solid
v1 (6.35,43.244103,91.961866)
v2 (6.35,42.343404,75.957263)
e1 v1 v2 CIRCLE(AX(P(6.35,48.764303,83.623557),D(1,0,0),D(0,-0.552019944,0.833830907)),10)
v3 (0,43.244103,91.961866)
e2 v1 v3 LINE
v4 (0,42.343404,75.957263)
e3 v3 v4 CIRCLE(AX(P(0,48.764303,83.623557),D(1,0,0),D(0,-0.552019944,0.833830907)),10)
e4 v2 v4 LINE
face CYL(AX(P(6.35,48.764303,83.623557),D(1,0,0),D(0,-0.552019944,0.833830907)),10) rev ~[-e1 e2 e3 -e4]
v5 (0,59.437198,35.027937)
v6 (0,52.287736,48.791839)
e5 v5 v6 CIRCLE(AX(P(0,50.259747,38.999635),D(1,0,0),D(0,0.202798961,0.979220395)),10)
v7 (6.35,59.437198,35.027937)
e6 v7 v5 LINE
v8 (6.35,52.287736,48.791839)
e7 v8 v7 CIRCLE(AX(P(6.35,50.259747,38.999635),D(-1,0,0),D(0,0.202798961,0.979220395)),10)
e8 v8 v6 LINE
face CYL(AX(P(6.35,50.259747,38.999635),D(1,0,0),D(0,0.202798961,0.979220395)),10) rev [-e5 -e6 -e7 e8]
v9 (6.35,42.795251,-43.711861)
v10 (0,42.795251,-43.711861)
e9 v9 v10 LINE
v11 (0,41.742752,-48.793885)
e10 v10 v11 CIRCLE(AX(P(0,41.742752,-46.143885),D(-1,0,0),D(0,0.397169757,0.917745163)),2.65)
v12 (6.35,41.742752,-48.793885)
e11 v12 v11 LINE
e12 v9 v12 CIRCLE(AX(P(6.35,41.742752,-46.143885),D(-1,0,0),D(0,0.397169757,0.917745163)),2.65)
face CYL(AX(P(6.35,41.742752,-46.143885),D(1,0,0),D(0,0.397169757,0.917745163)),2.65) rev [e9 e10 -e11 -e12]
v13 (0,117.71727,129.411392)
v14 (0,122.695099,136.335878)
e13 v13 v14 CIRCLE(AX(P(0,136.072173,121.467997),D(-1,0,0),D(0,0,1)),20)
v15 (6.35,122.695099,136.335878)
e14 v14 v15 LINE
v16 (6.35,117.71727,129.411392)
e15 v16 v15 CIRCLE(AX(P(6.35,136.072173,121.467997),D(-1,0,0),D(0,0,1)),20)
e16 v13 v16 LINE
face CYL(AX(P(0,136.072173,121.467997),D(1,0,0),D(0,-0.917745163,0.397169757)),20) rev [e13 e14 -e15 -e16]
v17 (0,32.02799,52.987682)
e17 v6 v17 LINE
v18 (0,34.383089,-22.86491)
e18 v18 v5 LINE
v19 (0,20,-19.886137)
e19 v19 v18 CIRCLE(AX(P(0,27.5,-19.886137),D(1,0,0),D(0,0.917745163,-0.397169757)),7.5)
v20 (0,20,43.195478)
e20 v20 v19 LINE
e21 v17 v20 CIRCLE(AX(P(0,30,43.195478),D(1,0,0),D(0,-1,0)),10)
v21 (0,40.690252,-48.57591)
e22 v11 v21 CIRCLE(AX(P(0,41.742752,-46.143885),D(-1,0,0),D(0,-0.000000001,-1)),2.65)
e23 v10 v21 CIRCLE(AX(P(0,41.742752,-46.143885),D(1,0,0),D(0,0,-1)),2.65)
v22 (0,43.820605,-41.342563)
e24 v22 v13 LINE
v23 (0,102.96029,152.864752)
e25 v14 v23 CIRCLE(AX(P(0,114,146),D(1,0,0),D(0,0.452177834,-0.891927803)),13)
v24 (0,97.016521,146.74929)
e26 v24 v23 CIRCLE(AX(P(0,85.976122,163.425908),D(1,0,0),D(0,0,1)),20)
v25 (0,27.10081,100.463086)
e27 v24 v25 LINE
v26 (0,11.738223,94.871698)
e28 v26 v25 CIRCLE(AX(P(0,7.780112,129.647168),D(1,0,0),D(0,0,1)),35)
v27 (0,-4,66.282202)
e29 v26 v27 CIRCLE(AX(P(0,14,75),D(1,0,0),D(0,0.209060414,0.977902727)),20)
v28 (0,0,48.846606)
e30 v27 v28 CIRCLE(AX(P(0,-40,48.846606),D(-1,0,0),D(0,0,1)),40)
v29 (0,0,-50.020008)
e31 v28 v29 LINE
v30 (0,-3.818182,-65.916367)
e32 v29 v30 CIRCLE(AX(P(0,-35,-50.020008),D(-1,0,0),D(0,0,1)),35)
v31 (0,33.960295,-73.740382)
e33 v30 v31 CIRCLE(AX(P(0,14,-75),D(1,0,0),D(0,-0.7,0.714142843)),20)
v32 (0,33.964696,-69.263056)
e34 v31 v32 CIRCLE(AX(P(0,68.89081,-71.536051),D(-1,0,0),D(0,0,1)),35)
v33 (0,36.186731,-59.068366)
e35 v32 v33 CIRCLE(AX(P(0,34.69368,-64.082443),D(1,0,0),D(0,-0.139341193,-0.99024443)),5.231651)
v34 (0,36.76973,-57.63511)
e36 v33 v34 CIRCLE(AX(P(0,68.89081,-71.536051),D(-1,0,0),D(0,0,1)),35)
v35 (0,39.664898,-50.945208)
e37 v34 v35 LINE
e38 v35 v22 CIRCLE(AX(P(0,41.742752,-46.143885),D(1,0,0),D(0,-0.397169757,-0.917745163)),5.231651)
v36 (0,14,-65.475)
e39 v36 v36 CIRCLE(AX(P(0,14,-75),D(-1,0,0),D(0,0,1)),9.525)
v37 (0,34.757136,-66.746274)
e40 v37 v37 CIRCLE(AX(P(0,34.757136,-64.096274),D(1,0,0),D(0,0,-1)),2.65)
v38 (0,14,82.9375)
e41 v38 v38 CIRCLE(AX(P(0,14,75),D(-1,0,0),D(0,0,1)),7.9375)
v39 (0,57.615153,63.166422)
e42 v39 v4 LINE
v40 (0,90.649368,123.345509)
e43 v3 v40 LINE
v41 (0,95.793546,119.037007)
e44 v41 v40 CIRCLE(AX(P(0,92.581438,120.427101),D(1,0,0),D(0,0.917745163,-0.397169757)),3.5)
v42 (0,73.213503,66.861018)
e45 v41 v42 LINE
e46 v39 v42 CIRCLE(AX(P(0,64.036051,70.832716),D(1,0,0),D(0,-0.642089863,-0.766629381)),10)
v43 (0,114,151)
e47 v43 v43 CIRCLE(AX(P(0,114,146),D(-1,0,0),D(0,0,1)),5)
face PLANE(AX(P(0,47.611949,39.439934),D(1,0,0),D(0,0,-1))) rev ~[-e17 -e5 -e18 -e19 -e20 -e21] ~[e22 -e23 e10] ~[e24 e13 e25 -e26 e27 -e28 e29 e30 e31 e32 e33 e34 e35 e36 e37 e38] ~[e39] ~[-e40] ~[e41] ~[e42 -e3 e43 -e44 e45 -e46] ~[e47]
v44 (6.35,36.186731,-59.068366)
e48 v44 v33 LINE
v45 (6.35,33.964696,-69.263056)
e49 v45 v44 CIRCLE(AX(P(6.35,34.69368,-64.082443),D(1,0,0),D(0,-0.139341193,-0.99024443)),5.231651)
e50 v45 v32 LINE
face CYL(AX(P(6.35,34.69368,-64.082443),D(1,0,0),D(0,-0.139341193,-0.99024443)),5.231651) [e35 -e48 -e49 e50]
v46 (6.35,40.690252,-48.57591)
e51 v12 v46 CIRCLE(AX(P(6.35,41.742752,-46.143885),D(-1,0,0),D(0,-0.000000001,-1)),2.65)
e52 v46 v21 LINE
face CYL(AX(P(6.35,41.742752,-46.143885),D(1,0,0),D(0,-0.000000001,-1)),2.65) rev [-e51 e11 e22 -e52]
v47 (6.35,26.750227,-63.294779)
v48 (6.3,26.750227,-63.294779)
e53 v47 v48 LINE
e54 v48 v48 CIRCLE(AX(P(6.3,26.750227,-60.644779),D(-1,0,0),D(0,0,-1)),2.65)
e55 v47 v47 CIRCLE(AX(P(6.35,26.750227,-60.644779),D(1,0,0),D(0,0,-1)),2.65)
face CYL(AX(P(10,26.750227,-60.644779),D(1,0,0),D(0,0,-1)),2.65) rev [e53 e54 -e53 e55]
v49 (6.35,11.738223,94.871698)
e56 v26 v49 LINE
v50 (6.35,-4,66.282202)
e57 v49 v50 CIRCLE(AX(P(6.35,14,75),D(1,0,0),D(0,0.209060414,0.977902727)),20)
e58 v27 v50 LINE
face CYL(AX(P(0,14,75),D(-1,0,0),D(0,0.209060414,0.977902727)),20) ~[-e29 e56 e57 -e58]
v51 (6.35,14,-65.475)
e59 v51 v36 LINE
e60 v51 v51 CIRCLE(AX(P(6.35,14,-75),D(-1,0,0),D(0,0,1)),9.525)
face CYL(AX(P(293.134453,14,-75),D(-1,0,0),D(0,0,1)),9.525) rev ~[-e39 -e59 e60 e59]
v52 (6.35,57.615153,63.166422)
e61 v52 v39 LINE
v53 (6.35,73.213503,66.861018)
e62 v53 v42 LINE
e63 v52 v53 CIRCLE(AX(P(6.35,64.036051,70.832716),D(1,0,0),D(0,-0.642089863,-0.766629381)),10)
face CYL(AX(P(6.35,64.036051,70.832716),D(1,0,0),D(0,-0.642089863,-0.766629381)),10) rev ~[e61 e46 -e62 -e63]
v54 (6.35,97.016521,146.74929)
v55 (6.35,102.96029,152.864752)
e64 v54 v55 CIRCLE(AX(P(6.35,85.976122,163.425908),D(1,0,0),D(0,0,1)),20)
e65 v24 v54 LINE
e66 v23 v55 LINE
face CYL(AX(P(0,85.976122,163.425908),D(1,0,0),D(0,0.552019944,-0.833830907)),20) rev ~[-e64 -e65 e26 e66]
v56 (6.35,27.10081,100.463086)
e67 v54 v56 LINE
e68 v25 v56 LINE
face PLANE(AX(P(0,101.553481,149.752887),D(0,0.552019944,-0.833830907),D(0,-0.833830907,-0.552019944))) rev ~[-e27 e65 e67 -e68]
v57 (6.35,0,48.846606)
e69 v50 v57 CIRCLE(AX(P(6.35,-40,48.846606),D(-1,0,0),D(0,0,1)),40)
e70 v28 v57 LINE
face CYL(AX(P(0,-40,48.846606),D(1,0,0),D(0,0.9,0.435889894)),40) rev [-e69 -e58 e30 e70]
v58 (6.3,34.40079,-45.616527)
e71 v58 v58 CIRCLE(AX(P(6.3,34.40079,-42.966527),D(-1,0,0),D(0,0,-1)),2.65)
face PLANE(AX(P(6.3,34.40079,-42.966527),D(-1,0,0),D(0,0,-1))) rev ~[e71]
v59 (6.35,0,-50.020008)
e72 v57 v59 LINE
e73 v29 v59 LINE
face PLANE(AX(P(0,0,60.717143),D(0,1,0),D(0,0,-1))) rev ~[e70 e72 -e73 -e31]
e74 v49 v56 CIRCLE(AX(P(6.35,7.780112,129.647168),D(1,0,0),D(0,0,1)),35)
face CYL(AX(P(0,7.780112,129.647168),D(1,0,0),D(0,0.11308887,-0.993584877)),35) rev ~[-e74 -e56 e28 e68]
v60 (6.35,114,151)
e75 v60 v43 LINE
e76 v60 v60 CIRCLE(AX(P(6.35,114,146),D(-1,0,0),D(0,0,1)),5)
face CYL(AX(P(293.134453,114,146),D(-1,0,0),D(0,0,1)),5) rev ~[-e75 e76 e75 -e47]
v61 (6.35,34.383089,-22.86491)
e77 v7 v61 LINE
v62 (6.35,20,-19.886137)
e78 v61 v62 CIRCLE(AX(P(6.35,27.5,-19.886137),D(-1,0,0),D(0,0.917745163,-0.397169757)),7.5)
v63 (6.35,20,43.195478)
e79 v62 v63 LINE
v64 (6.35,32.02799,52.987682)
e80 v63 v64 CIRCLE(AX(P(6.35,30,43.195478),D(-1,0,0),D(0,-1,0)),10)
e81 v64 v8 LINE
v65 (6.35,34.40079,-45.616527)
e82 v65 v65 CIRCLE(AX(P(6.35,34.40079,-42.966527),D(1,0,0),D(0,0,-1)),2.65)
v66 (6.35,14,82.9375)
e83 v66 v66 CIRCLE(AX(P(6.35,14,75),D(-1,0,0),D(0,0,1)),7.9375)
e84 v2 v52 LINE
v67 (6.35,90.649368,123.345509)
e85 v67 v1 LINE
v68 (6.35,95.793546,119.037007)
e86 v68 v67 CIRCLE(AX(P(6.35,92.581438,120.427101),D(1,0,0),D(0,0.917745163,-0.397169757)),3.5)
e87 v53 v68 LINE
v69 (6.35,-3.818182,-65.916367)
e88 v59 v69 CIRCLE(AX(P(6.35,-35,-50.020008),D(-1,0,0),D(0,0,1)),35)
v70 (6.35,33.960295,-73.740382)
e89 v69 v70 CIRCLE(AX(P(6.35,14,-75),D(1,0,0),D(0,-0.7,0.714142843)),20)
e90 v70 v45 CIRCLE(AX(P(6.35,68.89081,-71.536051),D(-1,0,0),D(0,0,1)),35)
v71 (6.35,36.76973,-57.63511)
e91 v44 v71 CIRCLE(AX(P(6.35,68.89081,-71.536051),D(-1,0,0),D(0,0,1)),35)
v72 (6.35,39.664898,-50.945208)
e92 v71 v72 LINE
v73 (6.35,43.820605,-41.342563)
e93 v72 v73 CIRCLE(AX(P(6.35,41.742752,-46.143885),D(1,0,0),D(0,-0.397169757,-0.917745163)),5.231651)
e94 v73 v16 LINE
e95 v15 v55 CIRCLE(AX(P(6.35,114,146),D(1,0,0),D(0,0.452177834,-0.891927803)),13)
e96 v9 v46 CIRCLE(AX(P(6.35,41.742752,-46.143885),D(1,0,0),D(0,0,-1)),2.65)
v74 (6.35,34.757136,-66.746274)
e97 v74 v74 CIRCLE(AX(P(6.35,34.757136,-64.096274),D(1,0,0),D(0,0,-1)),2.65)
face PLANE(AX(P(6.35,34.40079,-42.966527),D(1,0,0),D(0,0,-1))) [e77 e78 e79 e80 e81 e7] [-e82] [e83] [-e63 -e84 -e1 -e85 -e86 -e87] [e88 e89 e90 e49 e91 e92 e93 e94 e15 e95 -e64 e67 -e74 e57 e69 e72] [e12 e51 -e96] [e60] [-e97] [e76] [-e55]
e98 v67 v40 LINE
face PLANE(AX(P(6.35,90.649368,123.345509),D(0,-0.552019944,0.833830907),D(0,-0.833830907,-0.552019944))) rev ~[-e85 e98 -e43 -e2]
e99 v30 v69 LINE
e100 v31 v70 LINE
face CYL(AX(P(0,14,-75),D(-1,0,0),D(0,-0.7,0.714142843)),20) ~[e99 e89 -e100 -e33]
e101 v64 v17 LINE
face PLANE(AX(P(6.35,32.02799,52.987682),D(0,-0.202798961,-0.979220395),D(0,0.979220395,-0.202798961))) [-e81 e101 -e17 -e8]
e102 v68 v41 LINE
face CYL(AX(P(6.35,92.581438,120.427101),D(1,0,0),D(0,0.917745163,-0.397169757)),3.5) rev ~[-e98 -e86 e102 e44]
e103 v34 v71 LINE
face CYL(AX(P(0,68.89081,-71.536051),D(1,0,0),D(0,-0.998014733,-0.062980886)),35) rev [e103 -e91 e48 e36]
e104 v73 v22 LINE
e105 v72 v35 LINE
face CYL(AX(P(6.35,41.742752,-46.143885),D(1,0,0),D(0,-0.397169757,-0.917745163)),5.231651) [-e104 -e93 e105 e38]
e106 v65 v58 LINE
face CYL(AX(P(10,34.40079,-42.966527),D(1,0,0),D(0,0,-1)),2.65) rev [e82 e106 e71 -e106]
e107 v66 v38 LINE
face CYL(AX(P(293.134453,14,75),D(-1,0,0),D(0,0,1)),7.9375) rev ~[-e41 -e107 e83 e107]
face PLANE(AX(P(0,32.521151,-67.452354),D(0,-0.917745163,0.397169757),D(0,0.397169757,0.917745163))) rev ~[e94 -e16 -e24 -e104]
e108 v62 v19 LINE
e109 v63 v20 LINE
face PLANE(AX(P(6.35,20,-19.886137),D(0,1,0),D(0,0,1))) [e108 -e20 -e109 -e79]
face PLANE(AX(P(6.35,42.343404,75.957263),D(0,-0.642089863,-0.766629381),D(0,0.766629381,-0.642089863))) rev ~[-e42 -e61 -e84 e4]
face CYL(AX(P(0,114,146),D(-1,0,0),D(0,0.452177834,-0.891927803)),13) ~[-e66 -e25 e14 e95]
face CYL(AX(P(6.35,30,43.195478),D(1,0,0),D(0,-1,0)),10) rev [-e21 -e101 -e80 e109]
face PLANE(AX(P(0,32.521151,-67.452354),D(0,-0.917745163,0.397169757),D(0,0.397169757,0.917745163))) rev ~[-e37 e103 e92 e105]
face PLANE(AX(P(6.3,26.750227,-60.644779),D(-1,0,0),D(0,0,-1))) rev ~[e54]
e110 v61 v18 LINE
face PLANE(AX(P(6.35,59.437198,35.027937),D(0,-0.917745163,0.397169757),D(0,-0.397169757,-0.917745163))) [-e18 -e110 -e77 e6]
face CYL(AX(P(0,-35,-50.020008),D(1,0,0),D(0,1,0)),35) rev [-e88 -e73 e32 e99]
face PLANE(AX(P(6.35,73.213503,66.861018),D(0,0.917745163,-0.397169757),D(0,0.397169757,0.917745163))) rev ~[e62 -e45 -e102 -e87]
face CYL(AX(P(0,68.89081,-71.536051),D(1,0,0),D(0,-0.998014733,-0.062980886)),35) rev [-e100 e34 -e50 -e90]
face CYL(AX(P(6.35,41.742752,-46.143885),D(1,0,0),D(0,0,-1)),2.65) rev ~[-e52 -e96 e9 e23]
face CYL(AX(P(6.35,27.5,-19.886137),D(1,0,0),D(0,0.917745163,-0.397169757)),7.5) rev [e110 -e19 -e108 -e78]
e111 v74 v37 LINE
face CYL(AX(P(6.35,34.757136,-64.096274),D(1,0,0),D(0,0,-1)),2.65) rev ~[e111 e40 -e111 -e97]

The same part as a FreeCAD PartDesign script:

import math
import FreeCAD as App
import Part
import Sketcher
Q = App.Units.Quantity


def edges_at(feature, points):
    """Names of the edges that pass closest to the given points."""
    edges = feature.Shape.Edges
    near = lambda p: min(range(len(edges)), key=lambda i: edges[i].distToShape(Part.Vertex(*p))[0])
    return sorted({f"Edge{near(p) + 1}" for p in points})

doc = App.newDocument("Part")
body = doc.addObject("PartDesign::Body", "Body")

# Sketch on YZ plane
sketch1 = body.newObject("Sketcher::SketchObject", "Sketch")
sketch1.AttachmentSupport = (doc.getObject("YZ_Plane"), [""])
sketch1.MapMode = "FlatFace"
sketch1.addGeometry(Part.LineSegment(App.Vector(0, 60.717143, 0), App.Vector(0, -60.717143, 0)), False)
sketch1.addGeometry(Part.ArcOfCircle(Part.Circle(App.Vector(14, -75, 0), App.Vector(0, 0, 1), 20), math.radians(134.427004), math.radians(382.171631)), False)
sketch1.addGeometry(Part.LineSegment(App.Vector(32.521151, -67.452354, 0), App.Vector(119.878312, 134.404939, 0)), False)
sketch1.addGeometry(Part.ArcOfCircle(Part.Circle(App.Vector(114, 146, 0), App.Vector(0, 0, 1), 13), math.radians(-63.116502), math.radians(163.220837)), False)
sketch1.addGeometry(Part.LineSegment(App.Vector(101.553481, 149.752887, 0), App.Vector(18.181208, 94.558055, 0)), False)
sketch1.addGeometry(Part.ArcOfCircle(Part.Circle(App.Vector(14, 75, 0), App.Vector(0, 0, 1), 20), math.radians(77.932704), math.radians(225.572996)), False)
sketch1.addConstraint(Sketcher.Constraint("Coincident", 0, 2, 1, 1))
sketch1.addConstraint(Sketcher.Constraint("Coincident", 1, 2, 2, 1))
sketch1.addConstraint(Sketcher.Constraint("Coincident", 2, 2, 3, 1))
sketch1.addConstraint(Sketcher.Constraint("Coincident", 3, 2, 4, 1))
sketch1.addConstraint(Sketcher.Constraint("Coincident", 4, 2, 5, 1))
sketch1.addConstraint(Sketcher.Constraint("Coincident", 5, 2, 0, 1))
sketch1.addConstraint(Sketcher.Constraint("Vertical", 0))
sketch1.addConstraint(Sketcher.Constraint("Equal", 1, 5))
sketch1.addConstraint(Sketcher.Constraint("Symmetric", 0, 2, 5, 2, -1, 1))
sketch1.addConstraint(Sketcher.Constraint("Vertical", 1, 3, 5, 3))
sketch1.addConstraint(Sketcher.Constraint("Radius", 1, Q("20 mm")))
sketch1.addConstraint(Sketcher.Constraint("Radius", 3, Q("13 mm")))
sketch1.addConstraint(Sketcher.Constraint("DistanceX", -1, 1, 1, 3, Q("14 mm")))
sketch1.addConstraint(Sketcher.Constraint("DistanceY", 1, 3, -1, 1, Q("75 mm")))
sketch1.addConstraint(Sketcher.Constraint("DistanceX", -1, 1, 3, 3, Q("114 mm")))
sketch1.addConstraint(Sketcher.Constraint("DistanceY", -1, 1, 3, 3, Q("146 mm")))
sketch1.addConstraint(Sketcher.Constraint("DistanceX", -1, 1, 1, 2, Q("32.521151 mm")))
sketch1.addConstraint(Sketcher.Constraint("DistanceX", -1, 1, 2, 2, Q("119.878312 mm")))
sketch1.addConstraint(Sketcher.Constraint("DistanceX", -1, 1, 3, 2, Q("101.553481 mm")))
sketch1.addConstraint(Sketcher.Constraint("DistanceX", -1, 1, 4, 2, Q("18.181208 mm")))
pad1 = body.newObject("PartDesign::Pad", "Pad")
pad1.Profile = sketch1
pad1.Length = 6.35

# Sketch on YZ plane
sketch2 = body.newObject("Sketcher::SketchObject", "Sketch001")
sketch2.AttachmentSupport = (doc.getObject("YZ_Plane"), [""])
sketch2.MapMode = "FlatFace"
sketch2.AttachmentOffset = App.Placement(App.Vector(0, 0, 6.35), App.Rotation())
sketch2.addGeometry(Part.Circle(App.Vector(14, -75, 0), App.Vector(0, 0, 1), 9.525), False)
sketch2.addConstraint(Sketcher.Constraint("Diameter", 0, Q("19.05 mm")))
sketch2.addConstraint(Sketcher.Constraint("DistanceX", -1, 1, 0, 3, Q("14 mm")))
sketch2.addConstraint(Sketcher.Constraint("DistanceY", 0, 3, -1, 1, Q("75 mm")))
doc.recompute()
hole = body.newObject("PartDesign::Hole", "Hole")
hole.Profile = sketch2
hole.ThreadType = "None"
hole.Diameter = 19.05
hole.DepthType = "ThroughAll"

# Sketch on YZ plane
sketch3 = body.newObject("Sketcher::SketchObject", "Sketch002")
sketch3.AttachmentSupport = (doc.getObject("YZ_Plane"), [""])
sketch3.MapMode = "FlatFace"
sketch3.AttachmentOffset = App.Placement(App.Vector(0, 0, 6.35), App.Rotation())
sketch3.addGeometry(Part.Circle(App.Vector(114, 146, 0), App.Vector(0, 0, 1), 5), False)
sketch3.addConstraint(Sketcher.Constraint("Diameter", 0, Q("10 mm")))
sketch3.addConstraint(Sketcher.Constraint("DistanceX", -1, 1, 0, 3, Q("114 mm")))
sketch3.addConstraint(Sketcher.Constraint("DistanceY", -1, 1, 0, 3, Q("146 mm")))
doc.recompute()
hole2 = body.newObject("PartDesign::Hole", "Hole001")
hole2.Profile = sketch3
hole2.ThreadType = "None"
hole2.Diameter = 10
hole2.DepthType = "ThroughAll"

# Sketch on YZ plane
sketch4 = body.newObject("Sketcher::SketchObject", "Sketch003")
sketch4.AttachmentSupport = (doc.getObject("YZ_Plane"), [""])
sketch4.MapMode = "FlatFace"
sketch4.AttachmentOffset = App.Placement(App.Vector(0, 0, 6.35), App.Rotation())
sketch4.addGeometry(Part.Circle(App.Vector(14, 75, 0), App.Vector(0, 0, 1), 7.9375), False)
sketch4.addConstraint(Sketcher.Constraint("Diameter", 0, Q("15.875 mm")))
sketch4.addConstraint(Sketcher.Constraint("DistanceX", -1, 1, 0, 3, Q("14 mm")))
sketch4.addConstraint(Sketcher.Constraint("DistanceY", -1, 1, 0, 3, Q("75 mm")))
doc.recompute()
hole3 = body.newObject("PartDesign::Hole", "Hole002")
hole3.Profile = sketch4
hole3.ThreadType = "None"
hole3.Diameter = 15.875
hole3.DepthType = "ThroughAll"

# Sketch on YZ plane
sketch5 = body.newObject("Sketcher::SketchObject", "Sketch004")
sketch5.AttachmentSupport = (doc.getObject("YZ_Plane"), [""])
sketch5.MapMode = "FlatFace"
sketch5.AttachmentOffset = App.Placement(App.Vector(0, 0, 6.35), App.Rotation())
sketch5.addGeometry(Part.LineSegment(App.Vector(52.287736, 48.791839, 0), App.Vector(32.02799, 52.987682, 0)), False)
sketch5.addGeometry(Part.ArcOfCircle(Part.Circle(App.Vector(30, 43.195478, 0), App.Vector(0, 0, 1), 10), math.radians(78.299317), math.radians(180)), False)
sketch5.addGeometry(Part.LineSegment(App.Vector(20, 43.195478, 0), App.Vector(20, -19.886137, 0)), False)
sketch5.addGeometry(Part.ArcOfCircle(Part.Circle(App.Vector(27.5, -19.886137, 0), App.Vector(0, 0, 1), 7.5), math.radians(-180), math.radians(-23.401365)), False)
sketch5.addGeometry(Part.LineSegment(App.Vector(34.383089, -22.86491, 0), App.Vector(59.437198, 35.027937, 0)), False)
sketch5.addGeometry(Part.ArcOfCircle(Part.Circle(App.Vector(50.259747, 38.999635, 0), App.Vector(0, 0, 1), 10), math.radians(-23.401365), math.radians(78.299317)), False)
sketch5.addConstraint(Sketcher.Constraint("Tangent", 0, 2, 1, 1))
sketch5.addConstraint(Sketcher.Constraint("Tangent", 1, 2, 2, 1))
sketch5.addConstraint(Sketcher.Constraint("Tangent", 2, 2, 3, 1))
sketch5.addConstraint(Sketcher.Constraint("Tangent", 3, 2, 4, 1))
sketch5.addConstraint(Sketcher.Constraint("Tangent", 4, 2, 5, 1))
sketch5.addConstraint(Sketcher.Constraint("Tangent", 5, 2, 0, 1))
sketch5.addConstraint(Sketcher.Constraint("Vertical", 2))
sketch5.addConstraint(Sketcher.Constraint("Equal", 1, 5))
sketch5.addConstraint(Sketcher.Constraint("Radius", 1, Q("10 mm")))
sketch5.addConstraint(Sketcher.Constraint("Radius", 3, Q("7.5 mm")))
sketch5.addConstraint(Sketcher.Constraint("DistanceX", -1, 1, 1, 3, Q("30 mm")))
sketch5.addConstraint(Sketcher.Constraint("DistanceX", -1, 1, 4, 2, Q("59.437198 mm")))
sketch5.addConstraint(Sketcher.Constraint("DistanceY", 4, 2, 5, 2, Q("13.763902 mm")))
sketch5.addConstraint(Sketcher.Constraint("Distance", 0, Q("20.68967 mm")))
sketch5.addConstraint(Sketcher.Constraint("DistanceY", -1, 1, 1, 3, Q("43.195478 mm")))
pocket1 = body.newObject("PartDesign::Pocket", "Pocket")
pocket1.Profile = sketch5
pocket1.Type = "UpToFirst"

# Sketch on YZ plane
sketch6 = body.newObject("Sketcher::SketchObject", "Sketch005")
sketch6.AttachmentSupport = (doc.getObject("YZ_Plane"), [""])
sketch6.MapMode = "FlatFace"
sketch6.AttachmentOffset = App.Placement(App.Vector(0, 0, 6.35), App.Rotation())
sketch6.addGeometry(Part.LineSegment(App.Vector(42.343404, 75.957263, 0), App.Vector(57.615153, 63.166422, 0)), False)
sketch6.addGeometry(Part.ArcOfCircle(Part.Circle(App.Vector(64.036051, 70.832716, 0), App.Vector(0, 0, 1), 10), math.radians(-129.947832), math.radians(-23.401365)), False)
sketch6.addGeometry(Part.LineSegment(App.Vector(73.213503, 66.861018, 0), App.Vector(95.793546, 119.037007, 0)), False)
sketch6.addGeometry(Part.ArcOfCircle(Part.Circle(App.Vector(92.581438, 120.427101, 0), App.Vector(0, 0, 1), 3.5), math.radians(-23.401365), math.radians(123.5057)), False)
sketch6.addGeometry(Part.LineSegment(App.Vector(90.649368, 123.345509, 0), App.Vector(43.244103, 91.961866, 0)), False)
sketch6.addGeometry(Part.ArcOfCircle(Part.Circle(App.Vector(48.764303, 83.623557, 0), App.Vector(0, 0, 1), 10), math.radians(123.5057), math.radians(230.052168)), False)
sketch6.addConstraint(Sketcher.Constraint("Tangent", 0, 2, 1, 1))
sketch6.addConstraint(Sketcher.Constraint("Tangent", 1, 2, 2, 1))
sketch6.addConstraint(Sketcher.Constraint("Tangent", 2, 2, 3, 1))
sketch6.addConstraint(Sketcher.Constraint("Tangent", 3, 2, 4, 1))
sketch6.addConstraint(Sketcher.Constraint("Tangent", 4, 2, 5, 1))
sketch6.addConstraint(Sketcher.Constraint("Tangent", 5, 2, 0, 1))
sketch6.addConstraint(Sketcher.Constraint("Equal", 1, 5))
sketch6.addConstraint(Sketcher.Constraint("Equal", 2, 4))
sketch6.addConstraint(Sketcher.Constraint("Radius", 1, Q("10 mm")))
sketch6.addConstraint(Sketcher.Constraint("Radius", 3, Q("3.5 mm")))
sketch6.addConstraint(Sketcher.Constraint("DistanceY", -1, 1, 3, 3, Q("120.427101 mm")))
sketch6.addConstraint(Sketcher.Constraint("DistanceX", 0, 2, 1, 3, Q("6.420899 mm")))
sketch6.addConstraint(Sketcher.Constraint("DistanceX", 5, 3, 1, 2, Q("24.4492 mm")))
sketch6.addConstraint(Sketcher.Constraint("DistanceX", 4, 2, 5, 3, Q("5.520199 mm")))
sketch6.addConstraint(Sketcher.Constraint("DistanceX", -1, 1, 1, 3, Q("64.036051 mm")))
pocket2 = body.newObject("PartDesign::Pocket", "Pocket001")
pocket2.Profile = sketch6
pocket2.Type = "UpToFirst"
doc.recompute()

fillet = body.newObject("PartDesign::Fillet", "Fillet")
fillet.Base = (pocket2, edges_at(pocket2, [(3.175, 18.181, 94.558)]))
fillet.Radius = 35
doc.recompute()

fillet2 = body.newObject("PartDesign::Fillet", "Fillet001")
fillet2.Base = (fillet, edges_at(fillet, [(3.175, 32.521, -67.452), (3.175, 0, -60.717)]))
fillet2.Radius = 35
doc.recompute()

fillet3 = body.newObject("PartDesign::Fillet", "Fillet002")
fillet3.Base = (fillet2, edges_at(fillet2, [(3.175, 101.553, 149.753), (3.175, 119.878, 134.405)]))
fillet3.Radius = 20
doc.recompute()

fillet4 = body.newObject("PartDesign::Fillet", "Fillet003")
fillet4.Base = (fillet3, edges_at(fillet3, [(3.175, 0, 60.717)]))
fillet4.Radius = 40

# Sketch on YZ plane
sketch7 = body.newObject("Sketcher::SketchObject", "Sketch006")
sketch7.AttachmentSupport = (doc.getObject("YZ_Plane"), [""])
sketch7.MapMode = "FlatFace"
sketch7.AttachmentOffset = App.Placement(App.Vector(0, 0, 6.35), App.Rotation())
sketch7.addGeometry(Part.Circle(App.Vector(26.750227, -60.644779, 0), App.Vector(0, 0, 1), 2.65), False)
sketch7.addConstraint(Sketcher.Constraint("Diameter", 0, Q("5.3 mm")))
sketch7.addConstraint(Sketcher.Constraint("DistanceY", 0, 3, -1, 1, Q("60.644779 mm")))
sketch7.addConstraint(Sketcher.Constraint("DistanceX", -1, 1, 0, 3, Q("26.750227 mm")))
pocket3 = body.newObject("PartDesign::Pocket", "Pocket002")
pocket3.Profile = sketch7
pocket3.Length = 10

# Sketch on YZ plane
sketch8 = body.newObject("Sketcher::SketchObject", "Sketch007")
sketch8.AttachmentSupport = (doc.getObject("YZ_Plane"), [""])
sketch8.MapMode = "FlatFace"
sketch8.AttachmentOffset = App.Placement(App.Vector(0, 0, 6.35), App.Rotation())
sketch8.addGeometry(Part.Circle(App.Vector(34.40079, -42.966527, 0), App.Vector(0, 0, 1), 2.65), False)
sketch8.addConstraint(Sketcher.Constraint("Diameter", 0, Q("5.3 mm")))
sketch8.addConstraint(Sketcher.Constraint("DistanceX", -1, 1, 0, 3, Q("34.40079 mm")))
sketch8.addConstraint(Sketcher.Constraint("DistanceY", 0, 3, -1, 1, Q("42.966527 mm")))
pocket4 = body.newObject("PartDesign::Pocket", "Pocket003")
pocket4.Profile = sketch8
pocket4.Length = 10

# Sketch on YZ plane
sketch9 = body.newObject("Sketcher::SketchObject", "Sketch008")
sketch9.AttachmentSupport = (doc.getObject("YZ_Plane"), [""])
sketch9.MapMode = "FlatFace"
sketch9.AttachmentOffset = App.Placement(App.Vector(0, 0, 6.35), App.Rotation())
sketch9.addGeometry(Part.ArcOfCircle(Part.Circle(App.Vector(41.742752, -46.143885, 0), App.Vector(0, 0, 1), 2.65), math.radians(-90), math.radians(66.598635)), False)
sketch9.addGeometry(Part.ArcOfCircle(Part.Circle(App.Vector(41.742752, -46.143885, 0), App.Vector(0, 0, 1), 2.65), math.radians(-113.401365), math.radians(-90)), False)
sketch9.addGeometry(Part.LineSegment(App.Vector(40.690252, -48.57591, 0), App.Vector(39.664898, -50.945208, 0)), False)
sketch9.addGeometry(Part.ArcOfCircle(Part.Circle(App.Vector(41.742752, -46.143885, 0), App.Vector(0, 0, 1), 5.231651), math.radians(-113.401365), math.radians(66.598635)), False)
sketch9.addGeometry(Part.LineSegment(App.Vector(43.820605, -41.342563, 0), App.Vector(42.795251, -43.711861, 0)), False)
sketch9.addConstraint(Sketcher.Constraint("Tangent", 0, 1, 1, 2))
sketch9.addConstraint(Sketcher.Constraint("Coincident", 1, 1, 2, 1))
sketch9.addConstraint(Sketcher.Constraint("Coincident", 2, 2, 3, 1))
sketch9.addConstraint(Sketcher.Constraint("Coincident", 3, 2, 4, 1))
sketch9.addConstraint(Sketcher.Constraint("Coincident", 4, 2, 0, 2))
sketch9.addConstraint(Sketcher.Constraint("Coincident", 3, 3, 0, 3))
sketch9.addConstraint(Sketcher.Constraint("Equal", 0, 1))
sketch9.addConstraint(Sketcher.Constraint("Parallel", 2, 4))
sketch9.addConstraint(Sketcher.Constraint("Vertical", 3, 3, 0, 1))
sketch9.addConstraint(Sketcher.Constraint("Radius", 0, Q("2.65 mm")))
sketch9.addConstraint(Sketcher.Constraint("Radius", 3, Q("5.231651 mm")))
sketch9.addConstraint(Sketcher.Constraint("DistanceX", -1, 1, 2, 2, Q("39.664898 mm")))
sketch9.addConstraint(Sketcher.Constraint("DistanceX", 1, 1, 0, 1, Q("1.0525 mm")))
sketch9.addConstraint(Sketcher.Constraint("DistanceX", 1, 3, 4, 2, Q("1.0525 mm")))
sketch9.addConstraint(Sketcher.Constraint("DistanceX", -1, 1, 0, 3, Q("41.742752 mm")))
sketch9.addConstraint(Sketcher.Constraint("DistanceY", 1, 1, -1, 1, Q("48.57591 mm")))
pad2 = body.newObject("PartDesign::Pad", "Pad001")
pad2.Profile = sketch9
pad2.Length = 6.35
pad2.Reversed = True

# Sketch on YZ plane
sketch10 = body.newObject("Sketcher::SketchObject", "Sketch009")
sketch10.AttachmentSupport = (doc.getObject("YZ_Plane"), [""])
sketch10.MapMode = "FlatFace"
sketch10.AttachmentOffset = App.Placement(App.Vector(0, 0, 6.35), App.Rotation())
sketch10.addGeometry(Part.ArcOfCircle(Part.Circle(App.Vector(34.69368, -64.082443, 0), App.Vector(0, 0, 1), 5.231651), math.radians(-98.009726), math.radians(73.417952)), False)
sketch10.addGeometry(Part.ArcOfCircle(Part.Circle(App.Vector(68.89081, -71.536051, 0), App.Vector(0, 0, 1), 35), math.radians(159.131791), math.radians(164.213131)), False)
sketch10.addGeometry(Part.ArcOfCircle(Part.Circle(App.Vector(34.69368, -64.082443, 0), App.Vector(0, 0, 1), 2.13219), math.radians(-90), math.radians(75.958622)), False)
sketch10.addGeometry(Part.ArcOfCircle(Part.Circle(App.Vector(34.69368, -64.082443, 0), App.Vector(0, 0, 1), 2.13219), math.radians(-100.550396), math.radians(-90)), False)
sketch10.addGeometry(Part.ArcOfCircle(Part.Circle(App.Vector(68.89081, -71.536051, 0), App.Vector(0, 0, 1), 35), math.radians(171.195096), math.radians(176.276435)), False)
sketch10.addConstraint(Sketcher.Constraint("Coincident", 0, 2, 1, 1))
sketch10.addConstraint(Sketcher.Constraint("Coincident", 1, 2, 2, 2))
sketch10.addConstraint(Sketcher.Constraint("Tangent", 2, 1, 3, 2))
sketch10.addConstraint(Sketcher.Constraint("Coincident", 3, 1, 4, 1))
sketch10.addConstraint(Sketcher.Constraint("Coincident", 4, 2, 0, 1))
sketch10.addConstraint(Sketcher.Constraint("Coincident", 2, 3, 0, 3))
sketch10.addConstraint(Sketcher.Constraint("Coincident", 4, 3, 1, 3))
sketch10.addConstraint(Sketcher.Constraint("Equal", 2, 3))
sketch10.addConstraint(Sketcher.Constraint("Equal", 1, 4))
sketch10.addConstraint(Sketcher.Constraint("Vertical", 3, 3, 2, 1))
sketch10.addConstraint(Sketcher.Constraint("Radius", 1, Q("35 mm")))
sketch10.addConstraint(Sketcher.Constraint("Radius", 0, Q("5.231651 mm")))
sketch10.addConstraint(Sketcher.Constraint("Radius", 2, Q("2.13219 mm")))
sketch10.addConstraint(Sketcher.Constraint("DistanceX", -1, 1, 0, 3, Q("34.69368 mm")))
sketch10.addConstraint(Sketcher.Constraint("DistanceX", -1, 1, 1, 3, Q("68.89081 mm")))
sketch10.addConstraint(Sketcher.Constraint("DistanceY", 1, 3, -1, 1, Q("71.536051 mm")))
sketch10.addConstraint(Sketcher.Constraint("DistanceX", -1, 1, 0, 2, Q("36.186731 mm")))
pad3 = body.newObject("PartDesign::Pad", "Pad002")
pad3.Profile = sketch10
pad3.Length = 6.35
pad3.Reversed = True

# Sketch on YZ plane
sketch11 = body.newObject("Sketcher::SketchObject", "Sketch010")
sketch11.AttachmentSupport = (doc.getObject("YZ_Plane"), [""])
sketch11.MapMode = "FlatFace"
sketch11.AttachmentOffset = App.Placement(App.Vector(0, 0, 6.35), App.Rotation())
sketch11.addGeometry(Part.Circle(App.Vector(41.742752, -46.143885, 0), App.Vector(0, 0, 1), 2.65), False)
sketch11.addConstraint(Sketcher.Constraint("Diameter", 0, Q("5.3 mm")))
sketch11.addConstraint(Sketcher.Constraint("DistanceX", -1, 1, 0, 3, Q("41.742752 mm")))
sketch11.addConstraint(Sketcher.Constraint("DistanceY", 0, 3, -1, 1, Q("46.143885 mm")))
pocket5 = body.newObject("PartDesign::Pocket", "Pocket004")
pocket5.Profile = sketch11
pocket5.Length = 6.35

# Sketch on YZ plane
sketch12 = body.newObject("Sketcher::SketchObject", "Sketch011")
sketch12.AttachmentSupport = (doc.getObject("YZ_Plane"), [""])
sketch12.MapMode = "FlatFace"
sketch12.AttachmentOffset = App.Placement(App.Vector(0, 0, 6.35), App.Rotation())
sketch12.addGeometry(Part.Circle(App.Vector(34.757136, -64.096274, 0), App.Vector(0, 0, 1), 2.131201), False)
sketch12.addConstraint(Sketcher.Constraint("Diameter", 0, Q("4.262401 mm")))
sketch12.addConstraint(Sketcher.Constraint("DistanceX", -1, 1, 0, 3, Q("34.757136 mm")))
sketch12.addConstraint(Sketcher.Constraint("DistanceY", 0, 3, -1, 1, Q("64.096274 mm")))
pocket6 = body.newObject("PartDesign::Pocket", "Pocket005")
pocket6.Profile = sketch12
pocket6.Length = 6.35

# Sketch on YZ plane
sketch13 = body.newObject("Sketcher::SketchObject", "Sketch012")
sketch13.AttachmentSupport = (doc.getObject("YZ_Plane"), [""])
sketch13.MapMode = "FlatFace"
sketch13.AttachmentOffset = App.Placement(App.Vector(0, 0, 6.35), App.Rotation())
sketch13.addGeometry(Part.Circle(App.Vector(34.757136, -64.096274, 0), App.Vector(0, 0, 1), 2.65), False)
sketch13.addConstraint(Sketcher.Constraint("Diameter", 0, Q("5.3 mm")))
sketch13.addConstraint(Sketcher.Constraint("DistanceX", -1, 1, 0, 3, Q("34.757136 mm")))
sketch13.addConstraint(Sketcher.Constraint("DistanceY", 0, 3, -1, 1, Q("64.096274 mm")))
pocket7 = body.newObject("PartDesign::Pocket", "Pocket006")
pocket7.Profile = sketch13
pocket7.Length = 6.35

# Sketch on YZ plane
sketch14 = body.newObject("Sketcher::SketchObject", "Sketch013")
sketch14.AttachmentSupport = (doc.getObject("YZ_Plane"), [""])
sketch14.MapMode = "FlatFace"
sketch14.AttachmentOffset = App.Placement(App.Vector(0, 0, 6.35), App.Rotation())
sketch14.addGeometry(Part.Circle(App.Vector(34.40079, -42.966527, 0), App.Vector(0, 0, 1), 2.65), False)
sketch14.addGeometry(Part.Circle(App.Vector(26.683263, -60.715336, 0), App.Vector(0, 0, 1), 3.724628), False)
sketch14.addConstraint(Sketcher.Constraint("Diameter", 0, Q("5.3 mm")))
sketch14.addConstraint(Sketcher.Constraint("Diameter", 1, Q("7.449256 mm")))
sketch14.addConstraint(Sketcher.Constraint("DistanceX", -1, 1, 0, 3, Q("34.40079 mm")))
sketch14.addConstraint(Sketcher.Constraint("DistanceY", 1, 3, 0, 3, Q("17.748809 mm")))
sketch14.addConstraint(Sketcher.Constraint("DistanceY", 0, 3, -1, 1, Q("42.966527 mm")))
sketch14.addConstraint(Sketcher.Constraint("DistanceX", -1, 1, 1, 3, Q("26.683263 mm")))
pad4 = body.newObject("PartDesign::Pad", "Pad003")
pad4.Profile = sketch14
pad4.Length = 6.3
pad4.Reversed = True

# Sketch on YZ plane
sketch15 = body.newObject("Sketcher::SketchObject", "Sketch014")
sketch15.AttachmentSupport = (doc.getObject("YZ_Plane"), [""])
sketch15.MapMode = "FlatFace"
sketch15.AttachmentOffset = App.Placement(App.Vector(0, 0, 10), App.Rotation())
sketch15.addGeometry(Part.Circle(App.Vector(26.750227, -60.644779, 0), App.Vector(0, 0, 1), 2.65), False)
sketch15.addGeometry(Part.Circle(App.Vector(34.40079, -42.966527, 0), App.Vector(0, 0, 1), 2.65), False)
sketch15.addConstraint(Sketcher.Constraint("Equal", 0, 1))
sketch15.addConstraint(Sketcher.Constraint("Diameter", 0, Q("5.3 mm")))
sketch15.addConstraint(Sketcher.Constraint("DistanceY", 0, 3, -1, 1, Q("60.644779 mm")))
sketch15.addConstraint(Sketcher.Constraint("DistanceX", -1, 1, 1, 3, Q("34.40079 mm")))
sketch15.addConstraint(Sketcher.Constraint("DistanceY", 0, 3, 1, 3, Q("17.678252 mm")))
sketch15.addConstraint(Sketcher.Constraint("DistanceX", -1, 1, 0, 3, Q("26.750227 mm")))
pocket8 = body.newObject("PartDesign::Pocket", "Pocket007")
pocket8.Profile = sketch15
pocket8.Length = 10

# Sketch on YZ plane
sketch16 = body.newObject("Sketcher::SketchObject", "Sketch015")
sketch16.AttachmentSupport = (doc.getObject("YZ_Plane"), [""])
sketch16.MapMode = "FlatFace"
sketch16.AttachmentOffset = App.Placement(App.Vector(0, 0, 6.3), App.Rotation())
sketch16.addGeometry(Part.Circle(App.Vector(26.750227, -60.644779, 0), App.Vector(0, 0, 1), 2.65), False)
sketch16.addGeometry(Part.Circle(App.Vector(34.40079, -42.966527, 0), App.Vector(0, 0, 1), 2.65), False)
sketch16.addConstraint(Sketcher.Constraint("Equal", 0, 1))
sketch16.addConstraint(Sketcher.Constraint("Diameter", 0, Q("5.3 mm")))
sketch16.addConstraint(Sketcher.Constraint("DistanceY", 0, 3, -1, 1, Q("60.644779 mm")))
sketch16.addConstraint(Sketcher.Constraint("DistanceX", -1, 1, 1, 3, Q("34.40079 mm")))
sketch16.addConstraint(Sketcher.Constraint("DistanceY", 0, 3, 1, 3, Q("17.678252 mm")))
sketch16.addConstraint(Sketcher.Constraint("DistanceX", -1, 1, 0, 3, Q("26.750227 mm")))
pad5 = body.newObject("PartDesign::Pad", "Pad004")
pad5.Profile = sketch16
pad5.Length = 6.3
pad5.Reversed = True

doc.recompute()
